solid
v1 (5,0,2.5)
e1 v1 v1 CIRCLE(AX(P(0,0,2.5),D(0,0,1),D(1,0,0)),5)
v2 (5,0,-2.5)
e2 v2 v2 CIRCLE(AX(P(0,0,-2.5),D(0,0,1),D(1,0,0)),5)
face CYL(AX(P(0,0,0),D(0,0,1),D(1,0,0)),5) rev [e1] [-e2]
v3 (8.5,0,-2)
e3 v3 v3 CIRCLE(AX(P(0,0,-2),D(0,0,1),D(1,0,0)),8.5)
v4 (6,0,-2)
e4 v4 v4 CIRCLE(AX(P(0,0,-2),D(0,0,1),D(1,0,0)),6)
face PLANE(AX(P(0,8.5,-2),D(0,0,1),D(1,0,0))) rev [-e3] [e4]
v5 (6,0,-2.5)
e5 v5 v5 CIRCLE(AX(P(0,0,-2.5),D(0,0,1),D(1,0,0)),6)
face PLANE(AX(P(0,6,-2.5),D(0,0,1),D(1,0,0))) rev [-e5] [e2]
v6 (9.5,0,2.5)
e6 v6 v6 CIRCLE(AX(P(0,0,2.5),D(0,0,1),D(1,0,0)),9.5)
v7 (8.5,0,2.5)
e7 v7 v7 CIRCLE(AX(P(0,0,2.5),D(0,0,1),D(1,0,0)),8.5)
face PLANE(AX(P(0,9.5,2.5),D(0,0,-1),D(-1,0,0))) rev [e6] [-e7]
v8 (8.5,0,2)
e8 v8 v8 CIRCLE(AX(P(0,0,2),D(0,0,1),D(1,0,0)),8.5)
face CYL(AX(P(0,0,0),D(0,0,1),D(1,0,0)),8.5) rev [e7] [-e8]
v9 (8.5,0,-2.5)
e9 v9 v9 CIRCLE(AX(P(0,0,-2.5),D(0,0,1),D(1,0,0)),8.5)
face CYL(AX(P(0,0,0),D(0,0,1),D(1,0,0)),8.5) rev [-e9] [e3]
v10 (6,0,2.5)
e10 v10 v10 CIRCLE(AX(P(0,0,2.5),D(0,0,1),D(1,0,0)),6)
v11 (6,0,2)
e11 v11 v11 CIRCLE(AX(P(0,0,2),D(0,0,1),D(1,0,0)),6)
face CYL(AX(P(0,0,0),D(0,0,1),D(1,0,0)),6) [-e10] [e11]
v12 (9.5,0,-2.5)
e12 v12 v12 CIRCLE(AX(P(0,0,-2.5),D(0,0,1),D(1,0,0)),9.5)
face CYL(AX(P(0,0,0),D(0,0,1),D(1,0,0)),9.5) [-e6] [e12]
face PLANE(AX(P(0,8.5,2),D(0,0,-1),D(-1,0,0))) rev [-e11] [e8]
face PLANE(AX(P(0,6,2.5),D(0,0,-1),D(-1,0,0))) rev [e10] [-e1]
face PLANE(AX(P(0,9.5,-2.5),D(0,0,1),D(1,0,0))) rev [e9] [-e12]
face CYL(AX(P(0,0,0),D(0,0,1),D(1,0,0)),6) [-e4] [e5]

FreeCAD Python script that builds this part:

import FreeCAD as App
import Part
import Sketcher
from FreeCAD import Vector
Q = App.Units.Quantity


def add_polygon(sketch, points):
    """Adds a closed chain of lines whose ends are joined by coincident constraints."""
    first, n = sketch.GeometryCount, len(points)
    for a, b in zip(points, points[1:] + points[:1]):
        sketch.addGeometry(Part.LineSegment(App.Vector(*a, 0), App.Vector(*b, 0)), False)
    for i in range(n):
        sketch.addConstraint(Sketcher.Constraint("Coincident", first + i, 2, first + (i + 1) % n, 1))

doc = App.newDocument("Part")
body = doc.addObject("PartDesign::Body", "Body")

sketch1 = body.newObject("Sketcher::SketchObject", "Sketch")
sketch1.AttachmentSupport = (doc.getObject("YZ_Plane"), [""])
sketch1.MapMode = "FlatFace"
add_polygon(sketch1, [(6, 2.5), (5, 2.5), (5, -2.5), (6, -2.5), (6, -2), (8.5, -2), (8.5, -2.5), (9.5, -2.5), (9.5, 2.5), (8.5, 2.5), (8.5, 2), (6, 2)])
sketch1.addConstraint([
    Sketcher.Constraint("Horizontal", 0),
    Sketcher.Constraint("Vertical", 1),
    Sketcher.Constraint("Horizontal", 2),
    Sketcher.Constraint("Vertical", 3),
    Sketcher.Constraint("Horizontal", 4),
    Sketcher.Constraint("Vertical", 5),
    Sketcher.Constraint("Horizontal", 6),
    Sketcher.Constraint("Vertical", 7),
    Sketcher.Constraint("Horizontal", 8),
    Sketcher.Constraint("Vertical", 9),
    Sketcher.Constraint("Horizontal", 10),
    Sketcher.Constraint("Vertical", 11),
    Sketcher.Constraint("Symmetric", 5, 2, 8, 2, -1),
    Sketcher.Constraint("Symmetric", 3, 2, 10, 2, -1),
    Sketcher.Constraint("Horizontal", 2, 2, 5, 2),
    Sketcher.Constraint("Horizontal", 0, 2, 7, 2),
    Sketcher.Constraint("Equal", 2, 6),
    Sketcher.Constraint("DistanceX", 0, 2, 0, 1, Q("1 mm")),
    Sketcher.Constraint("DistanceY", 1, 2, 1, 1, Q("5 mm")),
    Sketcher.Constraint("DistanceX", 4, 1, 4, 2, Q("2.5 mm")),
    Sketcher.Constraint("DistanceY", 3, 1, 3, 2, Q("0.5 mm")),
    Sketcher.Constraint("DistanceX", -1, 1, 0, 2, Q("5 mm")),
])
revolution = body.newObject("PartDesign::Revolution", "Revolution")
revolution.Profile = sketch1
revolution.ReferenceAxis = (sketch1, ["V_Axis"])
revolution.Angle = 360

doc.recompute()
